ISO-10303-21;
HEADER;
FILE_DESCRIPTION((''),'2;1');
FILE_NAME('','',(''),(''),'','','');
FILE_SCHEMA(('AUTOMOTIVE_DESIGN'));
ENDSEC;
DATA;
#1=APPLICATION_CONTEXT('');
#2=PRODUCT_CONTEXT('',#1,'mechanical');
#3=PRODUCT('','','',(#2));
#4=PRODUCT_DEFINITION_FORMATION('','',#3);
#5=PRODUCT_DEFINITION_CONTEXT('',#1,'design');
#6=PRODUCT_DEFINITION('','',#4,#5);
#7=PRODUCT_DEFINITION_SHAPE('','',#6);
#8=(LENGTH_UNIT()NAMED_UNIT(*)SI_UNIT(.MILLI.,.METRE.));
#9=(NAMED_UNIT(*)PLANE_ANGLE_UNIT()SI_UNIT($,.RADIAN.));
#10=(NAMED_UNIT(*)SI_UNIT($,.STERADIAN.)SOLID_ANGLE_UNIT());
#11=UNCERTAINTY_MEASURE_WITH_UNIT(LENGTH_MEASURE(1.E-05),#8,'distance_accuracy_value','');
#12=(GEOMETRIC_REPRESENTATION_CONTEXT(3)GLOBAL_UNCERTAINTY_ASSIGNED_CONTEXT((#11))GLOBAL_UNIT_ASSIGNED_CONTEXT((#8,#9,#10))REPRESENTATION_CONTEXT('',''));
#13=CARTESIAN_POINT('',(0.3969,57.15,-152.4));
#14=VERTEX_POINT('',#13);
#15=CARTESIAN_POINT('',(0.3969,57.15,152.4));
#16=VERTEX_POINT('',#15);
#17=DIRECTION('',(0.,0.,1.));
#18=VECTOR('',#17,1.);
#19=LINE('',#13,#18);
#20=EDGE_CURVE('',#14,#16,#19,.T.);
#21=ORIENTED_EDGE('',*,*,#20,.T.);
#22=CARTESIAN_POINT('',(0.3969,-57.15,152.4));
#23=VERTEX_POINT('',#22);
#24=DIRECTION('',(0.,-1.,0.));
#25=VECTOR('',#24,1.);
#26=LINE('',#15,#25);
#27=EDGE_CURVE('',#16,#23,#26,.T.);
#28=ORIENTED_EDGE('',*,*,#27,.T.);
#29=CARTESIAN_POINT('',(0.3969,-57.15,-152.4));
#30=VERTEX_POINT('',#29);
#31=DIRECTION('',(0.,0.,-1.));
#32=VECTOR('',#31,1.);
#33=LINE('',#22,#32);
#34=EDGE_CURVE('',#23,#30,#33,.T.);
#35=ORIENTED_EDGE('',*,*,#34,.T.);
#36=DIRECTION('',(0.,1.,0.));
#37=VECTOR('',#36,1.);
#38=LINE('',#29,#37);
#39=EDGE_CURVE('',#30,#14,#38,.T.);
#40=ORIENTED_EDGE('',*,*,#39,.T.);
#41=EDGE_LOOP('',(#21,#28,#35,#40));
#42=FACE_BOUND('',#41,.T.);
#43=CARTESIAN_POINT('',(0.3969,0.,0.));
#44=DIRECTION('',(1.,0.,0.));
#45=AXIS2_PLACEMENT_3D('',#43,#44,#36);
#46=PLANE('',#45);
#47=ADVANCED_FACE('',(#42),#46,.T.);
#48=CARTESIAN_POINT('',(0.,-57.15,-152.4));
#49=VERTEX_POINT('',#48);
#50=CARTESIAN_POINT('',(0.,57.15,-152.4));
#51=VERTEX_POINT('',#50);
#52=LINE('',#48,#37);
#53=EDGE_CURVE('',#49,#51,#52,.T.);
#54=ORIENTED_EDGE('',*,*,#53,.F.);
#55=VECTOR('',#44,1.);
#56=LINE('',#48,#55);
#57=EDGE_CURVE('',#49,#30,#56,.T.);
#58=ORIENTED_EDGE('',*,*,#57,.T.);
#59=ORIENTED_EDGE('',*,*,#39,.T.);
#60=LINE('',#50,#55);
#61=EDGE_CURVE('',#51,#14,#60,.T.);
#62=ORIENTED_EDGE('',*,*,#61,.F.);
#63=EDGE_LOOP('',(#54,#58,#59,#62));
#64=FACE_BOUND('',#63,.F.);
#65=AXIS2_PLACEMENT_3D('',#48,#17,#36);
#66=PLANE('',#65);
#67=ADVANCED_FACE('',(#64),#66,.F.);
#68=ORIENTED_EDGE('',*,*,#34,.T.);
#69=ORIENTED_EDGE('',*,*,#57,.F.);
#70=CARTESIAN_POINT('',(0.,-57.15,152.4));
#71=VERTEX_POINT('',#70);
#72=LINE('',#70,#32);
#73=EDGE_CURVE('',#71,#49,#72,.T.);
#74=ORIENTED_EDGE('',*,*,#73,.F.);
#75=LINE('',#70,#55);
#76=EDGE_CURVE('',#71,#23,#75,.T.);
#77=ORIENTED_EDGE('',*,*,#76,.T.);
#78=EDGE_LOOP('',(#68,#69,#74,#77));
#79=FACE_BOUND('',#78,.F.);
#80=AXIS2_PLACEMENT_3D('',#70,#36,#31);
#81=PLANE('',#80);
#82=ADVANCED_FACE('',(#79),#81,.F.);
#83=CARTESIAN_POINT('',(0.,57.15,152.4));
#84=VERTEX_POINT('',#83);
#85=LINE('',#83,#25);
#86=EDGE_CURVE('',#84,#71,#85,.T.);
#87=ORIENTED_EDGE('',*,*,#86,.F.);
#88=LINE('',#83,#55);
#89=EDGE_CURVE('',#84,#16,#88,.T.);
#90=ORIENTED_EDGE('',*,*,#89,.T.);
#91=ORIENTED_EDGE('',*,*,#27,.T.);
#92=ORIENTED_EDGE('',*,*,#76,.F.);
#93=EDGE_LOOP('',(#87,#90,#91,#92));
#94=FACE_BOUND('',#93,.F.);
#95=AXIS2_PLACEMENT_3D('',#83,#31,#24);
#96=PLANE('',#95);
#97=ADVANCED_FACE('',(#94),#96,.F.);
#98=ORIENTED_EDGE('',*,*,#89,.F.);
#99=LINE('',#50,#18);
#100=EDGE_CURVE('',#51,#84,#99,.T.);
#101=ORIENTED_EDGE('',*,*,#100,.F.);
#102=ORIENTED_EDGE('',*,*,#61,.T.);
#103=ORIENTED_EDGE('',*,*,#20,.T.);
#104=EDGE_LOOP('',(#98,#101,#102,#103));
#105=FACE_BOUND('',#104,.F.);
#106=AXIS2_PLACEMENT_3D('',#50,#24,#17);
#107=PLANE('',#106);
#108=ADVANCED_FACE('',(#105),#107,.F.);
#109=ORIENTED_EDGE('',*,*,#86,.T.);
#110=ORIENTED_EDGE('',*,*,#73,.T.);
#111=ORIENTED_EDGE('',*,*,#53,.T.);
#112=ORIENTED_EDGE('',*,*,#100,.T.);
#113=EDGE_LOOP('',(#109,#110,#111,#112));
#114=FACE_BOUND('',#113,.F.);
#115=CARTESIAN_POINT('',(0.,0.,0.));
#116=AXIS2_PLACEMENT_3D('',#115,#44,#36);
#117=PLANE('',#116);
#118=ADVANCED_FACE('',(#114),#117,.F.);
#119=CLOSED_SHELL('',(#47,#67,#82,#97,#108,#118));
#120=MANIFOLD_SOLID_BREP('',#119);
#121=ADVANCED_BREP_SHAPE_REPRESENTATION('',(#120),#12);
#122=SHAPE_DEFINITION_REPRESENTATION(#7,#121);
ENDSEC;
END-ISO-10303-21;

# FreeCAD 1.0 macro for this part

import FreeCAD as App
import Part
import Sketcher
Q = App.Units.Quantity

doc = App.newDocument("Part")
params = doc.addObject("Spreadsheet::Sheet", "Params")
for row, (alias, value) in enumerate([
    ("sketch1_height", "12 in"),
    ("sketch1_width", "4.5 in"),
    ("pad1_length", "0.015626 in"),
], start=1):
    params.set(f"A{row}", alias)
    params.set(f"B{row}", "=" + value)
    params.setAlias(f"B{row}", alias)

body = doc.addObject("PartDesign::Body", "Body")

# Sketch on YZ plane
sketch1 = body.newObject("Sketcher::SketchObject", "Sketch")
sketch1.AttachmentSupport = (doc.getObject("YZ_Plane"), [""])
sketch1.MapMode = "FlatFace"
sketch1.addGeometry([
    Part.LineSegment(App.Vector(57.15, -152.4, 0), App.Vector(57.15, 152.4, 0)),
    Part.LineSegment(App.Vector(57.15, 152.4, 0), App.Vector(-57.15, 152.4, 0)),
    Part.LineSegment(App.Vector(-57.15, 152.4, 0), App.Vector(-57.15, -152.4, 0)),
    Part.LineSegment(App.Vector(-57.15, -152.4, 0), App.Vector(57.15, -152.4, 0)),
], False)
sketch1.addConstraint([
    Sketcher.Constraint("Coincident", 0, 2, 1, 1),
    Sketcher.Constraint("Coincident", 1, 2, 2, 1),
    Sketcher.Constraint("Coincident", 2, 2, 3, 1),
    Sketcher.Constraint("Coincident", 3, 2, 0, 1),
    Sketcher.Constraint("Vertical", 0),
    Sketcher.Constraint("Horizontal", 1),
    Sketcher.Constraint("Vertical", 2),
    Sketcher.Constraint("Horizontal", 3),
    Sketcher.Constraint("Symmetric", 0, 2, 2, 2, -1, 1),
    Sketcher.Constraint("DistanceY", 0, 1, 0, 2, Q("12 in")),
    Sketcher.Constraint("DistanceX", 1, 2, 1, 1, Q("4.5 in")),
])
sketch1.setExpression("Constraints[9]", "Params.sketch1_height")
sketch1.setExpression("Constraints[10]", "Params.sketch1_width")
pad1 = body.newObject("PartDesign::Pad", "Pad")
pad1.Profile = sketch1
pad1.setExpression("Length", "Params.pad1_length")

doc.recompute()
